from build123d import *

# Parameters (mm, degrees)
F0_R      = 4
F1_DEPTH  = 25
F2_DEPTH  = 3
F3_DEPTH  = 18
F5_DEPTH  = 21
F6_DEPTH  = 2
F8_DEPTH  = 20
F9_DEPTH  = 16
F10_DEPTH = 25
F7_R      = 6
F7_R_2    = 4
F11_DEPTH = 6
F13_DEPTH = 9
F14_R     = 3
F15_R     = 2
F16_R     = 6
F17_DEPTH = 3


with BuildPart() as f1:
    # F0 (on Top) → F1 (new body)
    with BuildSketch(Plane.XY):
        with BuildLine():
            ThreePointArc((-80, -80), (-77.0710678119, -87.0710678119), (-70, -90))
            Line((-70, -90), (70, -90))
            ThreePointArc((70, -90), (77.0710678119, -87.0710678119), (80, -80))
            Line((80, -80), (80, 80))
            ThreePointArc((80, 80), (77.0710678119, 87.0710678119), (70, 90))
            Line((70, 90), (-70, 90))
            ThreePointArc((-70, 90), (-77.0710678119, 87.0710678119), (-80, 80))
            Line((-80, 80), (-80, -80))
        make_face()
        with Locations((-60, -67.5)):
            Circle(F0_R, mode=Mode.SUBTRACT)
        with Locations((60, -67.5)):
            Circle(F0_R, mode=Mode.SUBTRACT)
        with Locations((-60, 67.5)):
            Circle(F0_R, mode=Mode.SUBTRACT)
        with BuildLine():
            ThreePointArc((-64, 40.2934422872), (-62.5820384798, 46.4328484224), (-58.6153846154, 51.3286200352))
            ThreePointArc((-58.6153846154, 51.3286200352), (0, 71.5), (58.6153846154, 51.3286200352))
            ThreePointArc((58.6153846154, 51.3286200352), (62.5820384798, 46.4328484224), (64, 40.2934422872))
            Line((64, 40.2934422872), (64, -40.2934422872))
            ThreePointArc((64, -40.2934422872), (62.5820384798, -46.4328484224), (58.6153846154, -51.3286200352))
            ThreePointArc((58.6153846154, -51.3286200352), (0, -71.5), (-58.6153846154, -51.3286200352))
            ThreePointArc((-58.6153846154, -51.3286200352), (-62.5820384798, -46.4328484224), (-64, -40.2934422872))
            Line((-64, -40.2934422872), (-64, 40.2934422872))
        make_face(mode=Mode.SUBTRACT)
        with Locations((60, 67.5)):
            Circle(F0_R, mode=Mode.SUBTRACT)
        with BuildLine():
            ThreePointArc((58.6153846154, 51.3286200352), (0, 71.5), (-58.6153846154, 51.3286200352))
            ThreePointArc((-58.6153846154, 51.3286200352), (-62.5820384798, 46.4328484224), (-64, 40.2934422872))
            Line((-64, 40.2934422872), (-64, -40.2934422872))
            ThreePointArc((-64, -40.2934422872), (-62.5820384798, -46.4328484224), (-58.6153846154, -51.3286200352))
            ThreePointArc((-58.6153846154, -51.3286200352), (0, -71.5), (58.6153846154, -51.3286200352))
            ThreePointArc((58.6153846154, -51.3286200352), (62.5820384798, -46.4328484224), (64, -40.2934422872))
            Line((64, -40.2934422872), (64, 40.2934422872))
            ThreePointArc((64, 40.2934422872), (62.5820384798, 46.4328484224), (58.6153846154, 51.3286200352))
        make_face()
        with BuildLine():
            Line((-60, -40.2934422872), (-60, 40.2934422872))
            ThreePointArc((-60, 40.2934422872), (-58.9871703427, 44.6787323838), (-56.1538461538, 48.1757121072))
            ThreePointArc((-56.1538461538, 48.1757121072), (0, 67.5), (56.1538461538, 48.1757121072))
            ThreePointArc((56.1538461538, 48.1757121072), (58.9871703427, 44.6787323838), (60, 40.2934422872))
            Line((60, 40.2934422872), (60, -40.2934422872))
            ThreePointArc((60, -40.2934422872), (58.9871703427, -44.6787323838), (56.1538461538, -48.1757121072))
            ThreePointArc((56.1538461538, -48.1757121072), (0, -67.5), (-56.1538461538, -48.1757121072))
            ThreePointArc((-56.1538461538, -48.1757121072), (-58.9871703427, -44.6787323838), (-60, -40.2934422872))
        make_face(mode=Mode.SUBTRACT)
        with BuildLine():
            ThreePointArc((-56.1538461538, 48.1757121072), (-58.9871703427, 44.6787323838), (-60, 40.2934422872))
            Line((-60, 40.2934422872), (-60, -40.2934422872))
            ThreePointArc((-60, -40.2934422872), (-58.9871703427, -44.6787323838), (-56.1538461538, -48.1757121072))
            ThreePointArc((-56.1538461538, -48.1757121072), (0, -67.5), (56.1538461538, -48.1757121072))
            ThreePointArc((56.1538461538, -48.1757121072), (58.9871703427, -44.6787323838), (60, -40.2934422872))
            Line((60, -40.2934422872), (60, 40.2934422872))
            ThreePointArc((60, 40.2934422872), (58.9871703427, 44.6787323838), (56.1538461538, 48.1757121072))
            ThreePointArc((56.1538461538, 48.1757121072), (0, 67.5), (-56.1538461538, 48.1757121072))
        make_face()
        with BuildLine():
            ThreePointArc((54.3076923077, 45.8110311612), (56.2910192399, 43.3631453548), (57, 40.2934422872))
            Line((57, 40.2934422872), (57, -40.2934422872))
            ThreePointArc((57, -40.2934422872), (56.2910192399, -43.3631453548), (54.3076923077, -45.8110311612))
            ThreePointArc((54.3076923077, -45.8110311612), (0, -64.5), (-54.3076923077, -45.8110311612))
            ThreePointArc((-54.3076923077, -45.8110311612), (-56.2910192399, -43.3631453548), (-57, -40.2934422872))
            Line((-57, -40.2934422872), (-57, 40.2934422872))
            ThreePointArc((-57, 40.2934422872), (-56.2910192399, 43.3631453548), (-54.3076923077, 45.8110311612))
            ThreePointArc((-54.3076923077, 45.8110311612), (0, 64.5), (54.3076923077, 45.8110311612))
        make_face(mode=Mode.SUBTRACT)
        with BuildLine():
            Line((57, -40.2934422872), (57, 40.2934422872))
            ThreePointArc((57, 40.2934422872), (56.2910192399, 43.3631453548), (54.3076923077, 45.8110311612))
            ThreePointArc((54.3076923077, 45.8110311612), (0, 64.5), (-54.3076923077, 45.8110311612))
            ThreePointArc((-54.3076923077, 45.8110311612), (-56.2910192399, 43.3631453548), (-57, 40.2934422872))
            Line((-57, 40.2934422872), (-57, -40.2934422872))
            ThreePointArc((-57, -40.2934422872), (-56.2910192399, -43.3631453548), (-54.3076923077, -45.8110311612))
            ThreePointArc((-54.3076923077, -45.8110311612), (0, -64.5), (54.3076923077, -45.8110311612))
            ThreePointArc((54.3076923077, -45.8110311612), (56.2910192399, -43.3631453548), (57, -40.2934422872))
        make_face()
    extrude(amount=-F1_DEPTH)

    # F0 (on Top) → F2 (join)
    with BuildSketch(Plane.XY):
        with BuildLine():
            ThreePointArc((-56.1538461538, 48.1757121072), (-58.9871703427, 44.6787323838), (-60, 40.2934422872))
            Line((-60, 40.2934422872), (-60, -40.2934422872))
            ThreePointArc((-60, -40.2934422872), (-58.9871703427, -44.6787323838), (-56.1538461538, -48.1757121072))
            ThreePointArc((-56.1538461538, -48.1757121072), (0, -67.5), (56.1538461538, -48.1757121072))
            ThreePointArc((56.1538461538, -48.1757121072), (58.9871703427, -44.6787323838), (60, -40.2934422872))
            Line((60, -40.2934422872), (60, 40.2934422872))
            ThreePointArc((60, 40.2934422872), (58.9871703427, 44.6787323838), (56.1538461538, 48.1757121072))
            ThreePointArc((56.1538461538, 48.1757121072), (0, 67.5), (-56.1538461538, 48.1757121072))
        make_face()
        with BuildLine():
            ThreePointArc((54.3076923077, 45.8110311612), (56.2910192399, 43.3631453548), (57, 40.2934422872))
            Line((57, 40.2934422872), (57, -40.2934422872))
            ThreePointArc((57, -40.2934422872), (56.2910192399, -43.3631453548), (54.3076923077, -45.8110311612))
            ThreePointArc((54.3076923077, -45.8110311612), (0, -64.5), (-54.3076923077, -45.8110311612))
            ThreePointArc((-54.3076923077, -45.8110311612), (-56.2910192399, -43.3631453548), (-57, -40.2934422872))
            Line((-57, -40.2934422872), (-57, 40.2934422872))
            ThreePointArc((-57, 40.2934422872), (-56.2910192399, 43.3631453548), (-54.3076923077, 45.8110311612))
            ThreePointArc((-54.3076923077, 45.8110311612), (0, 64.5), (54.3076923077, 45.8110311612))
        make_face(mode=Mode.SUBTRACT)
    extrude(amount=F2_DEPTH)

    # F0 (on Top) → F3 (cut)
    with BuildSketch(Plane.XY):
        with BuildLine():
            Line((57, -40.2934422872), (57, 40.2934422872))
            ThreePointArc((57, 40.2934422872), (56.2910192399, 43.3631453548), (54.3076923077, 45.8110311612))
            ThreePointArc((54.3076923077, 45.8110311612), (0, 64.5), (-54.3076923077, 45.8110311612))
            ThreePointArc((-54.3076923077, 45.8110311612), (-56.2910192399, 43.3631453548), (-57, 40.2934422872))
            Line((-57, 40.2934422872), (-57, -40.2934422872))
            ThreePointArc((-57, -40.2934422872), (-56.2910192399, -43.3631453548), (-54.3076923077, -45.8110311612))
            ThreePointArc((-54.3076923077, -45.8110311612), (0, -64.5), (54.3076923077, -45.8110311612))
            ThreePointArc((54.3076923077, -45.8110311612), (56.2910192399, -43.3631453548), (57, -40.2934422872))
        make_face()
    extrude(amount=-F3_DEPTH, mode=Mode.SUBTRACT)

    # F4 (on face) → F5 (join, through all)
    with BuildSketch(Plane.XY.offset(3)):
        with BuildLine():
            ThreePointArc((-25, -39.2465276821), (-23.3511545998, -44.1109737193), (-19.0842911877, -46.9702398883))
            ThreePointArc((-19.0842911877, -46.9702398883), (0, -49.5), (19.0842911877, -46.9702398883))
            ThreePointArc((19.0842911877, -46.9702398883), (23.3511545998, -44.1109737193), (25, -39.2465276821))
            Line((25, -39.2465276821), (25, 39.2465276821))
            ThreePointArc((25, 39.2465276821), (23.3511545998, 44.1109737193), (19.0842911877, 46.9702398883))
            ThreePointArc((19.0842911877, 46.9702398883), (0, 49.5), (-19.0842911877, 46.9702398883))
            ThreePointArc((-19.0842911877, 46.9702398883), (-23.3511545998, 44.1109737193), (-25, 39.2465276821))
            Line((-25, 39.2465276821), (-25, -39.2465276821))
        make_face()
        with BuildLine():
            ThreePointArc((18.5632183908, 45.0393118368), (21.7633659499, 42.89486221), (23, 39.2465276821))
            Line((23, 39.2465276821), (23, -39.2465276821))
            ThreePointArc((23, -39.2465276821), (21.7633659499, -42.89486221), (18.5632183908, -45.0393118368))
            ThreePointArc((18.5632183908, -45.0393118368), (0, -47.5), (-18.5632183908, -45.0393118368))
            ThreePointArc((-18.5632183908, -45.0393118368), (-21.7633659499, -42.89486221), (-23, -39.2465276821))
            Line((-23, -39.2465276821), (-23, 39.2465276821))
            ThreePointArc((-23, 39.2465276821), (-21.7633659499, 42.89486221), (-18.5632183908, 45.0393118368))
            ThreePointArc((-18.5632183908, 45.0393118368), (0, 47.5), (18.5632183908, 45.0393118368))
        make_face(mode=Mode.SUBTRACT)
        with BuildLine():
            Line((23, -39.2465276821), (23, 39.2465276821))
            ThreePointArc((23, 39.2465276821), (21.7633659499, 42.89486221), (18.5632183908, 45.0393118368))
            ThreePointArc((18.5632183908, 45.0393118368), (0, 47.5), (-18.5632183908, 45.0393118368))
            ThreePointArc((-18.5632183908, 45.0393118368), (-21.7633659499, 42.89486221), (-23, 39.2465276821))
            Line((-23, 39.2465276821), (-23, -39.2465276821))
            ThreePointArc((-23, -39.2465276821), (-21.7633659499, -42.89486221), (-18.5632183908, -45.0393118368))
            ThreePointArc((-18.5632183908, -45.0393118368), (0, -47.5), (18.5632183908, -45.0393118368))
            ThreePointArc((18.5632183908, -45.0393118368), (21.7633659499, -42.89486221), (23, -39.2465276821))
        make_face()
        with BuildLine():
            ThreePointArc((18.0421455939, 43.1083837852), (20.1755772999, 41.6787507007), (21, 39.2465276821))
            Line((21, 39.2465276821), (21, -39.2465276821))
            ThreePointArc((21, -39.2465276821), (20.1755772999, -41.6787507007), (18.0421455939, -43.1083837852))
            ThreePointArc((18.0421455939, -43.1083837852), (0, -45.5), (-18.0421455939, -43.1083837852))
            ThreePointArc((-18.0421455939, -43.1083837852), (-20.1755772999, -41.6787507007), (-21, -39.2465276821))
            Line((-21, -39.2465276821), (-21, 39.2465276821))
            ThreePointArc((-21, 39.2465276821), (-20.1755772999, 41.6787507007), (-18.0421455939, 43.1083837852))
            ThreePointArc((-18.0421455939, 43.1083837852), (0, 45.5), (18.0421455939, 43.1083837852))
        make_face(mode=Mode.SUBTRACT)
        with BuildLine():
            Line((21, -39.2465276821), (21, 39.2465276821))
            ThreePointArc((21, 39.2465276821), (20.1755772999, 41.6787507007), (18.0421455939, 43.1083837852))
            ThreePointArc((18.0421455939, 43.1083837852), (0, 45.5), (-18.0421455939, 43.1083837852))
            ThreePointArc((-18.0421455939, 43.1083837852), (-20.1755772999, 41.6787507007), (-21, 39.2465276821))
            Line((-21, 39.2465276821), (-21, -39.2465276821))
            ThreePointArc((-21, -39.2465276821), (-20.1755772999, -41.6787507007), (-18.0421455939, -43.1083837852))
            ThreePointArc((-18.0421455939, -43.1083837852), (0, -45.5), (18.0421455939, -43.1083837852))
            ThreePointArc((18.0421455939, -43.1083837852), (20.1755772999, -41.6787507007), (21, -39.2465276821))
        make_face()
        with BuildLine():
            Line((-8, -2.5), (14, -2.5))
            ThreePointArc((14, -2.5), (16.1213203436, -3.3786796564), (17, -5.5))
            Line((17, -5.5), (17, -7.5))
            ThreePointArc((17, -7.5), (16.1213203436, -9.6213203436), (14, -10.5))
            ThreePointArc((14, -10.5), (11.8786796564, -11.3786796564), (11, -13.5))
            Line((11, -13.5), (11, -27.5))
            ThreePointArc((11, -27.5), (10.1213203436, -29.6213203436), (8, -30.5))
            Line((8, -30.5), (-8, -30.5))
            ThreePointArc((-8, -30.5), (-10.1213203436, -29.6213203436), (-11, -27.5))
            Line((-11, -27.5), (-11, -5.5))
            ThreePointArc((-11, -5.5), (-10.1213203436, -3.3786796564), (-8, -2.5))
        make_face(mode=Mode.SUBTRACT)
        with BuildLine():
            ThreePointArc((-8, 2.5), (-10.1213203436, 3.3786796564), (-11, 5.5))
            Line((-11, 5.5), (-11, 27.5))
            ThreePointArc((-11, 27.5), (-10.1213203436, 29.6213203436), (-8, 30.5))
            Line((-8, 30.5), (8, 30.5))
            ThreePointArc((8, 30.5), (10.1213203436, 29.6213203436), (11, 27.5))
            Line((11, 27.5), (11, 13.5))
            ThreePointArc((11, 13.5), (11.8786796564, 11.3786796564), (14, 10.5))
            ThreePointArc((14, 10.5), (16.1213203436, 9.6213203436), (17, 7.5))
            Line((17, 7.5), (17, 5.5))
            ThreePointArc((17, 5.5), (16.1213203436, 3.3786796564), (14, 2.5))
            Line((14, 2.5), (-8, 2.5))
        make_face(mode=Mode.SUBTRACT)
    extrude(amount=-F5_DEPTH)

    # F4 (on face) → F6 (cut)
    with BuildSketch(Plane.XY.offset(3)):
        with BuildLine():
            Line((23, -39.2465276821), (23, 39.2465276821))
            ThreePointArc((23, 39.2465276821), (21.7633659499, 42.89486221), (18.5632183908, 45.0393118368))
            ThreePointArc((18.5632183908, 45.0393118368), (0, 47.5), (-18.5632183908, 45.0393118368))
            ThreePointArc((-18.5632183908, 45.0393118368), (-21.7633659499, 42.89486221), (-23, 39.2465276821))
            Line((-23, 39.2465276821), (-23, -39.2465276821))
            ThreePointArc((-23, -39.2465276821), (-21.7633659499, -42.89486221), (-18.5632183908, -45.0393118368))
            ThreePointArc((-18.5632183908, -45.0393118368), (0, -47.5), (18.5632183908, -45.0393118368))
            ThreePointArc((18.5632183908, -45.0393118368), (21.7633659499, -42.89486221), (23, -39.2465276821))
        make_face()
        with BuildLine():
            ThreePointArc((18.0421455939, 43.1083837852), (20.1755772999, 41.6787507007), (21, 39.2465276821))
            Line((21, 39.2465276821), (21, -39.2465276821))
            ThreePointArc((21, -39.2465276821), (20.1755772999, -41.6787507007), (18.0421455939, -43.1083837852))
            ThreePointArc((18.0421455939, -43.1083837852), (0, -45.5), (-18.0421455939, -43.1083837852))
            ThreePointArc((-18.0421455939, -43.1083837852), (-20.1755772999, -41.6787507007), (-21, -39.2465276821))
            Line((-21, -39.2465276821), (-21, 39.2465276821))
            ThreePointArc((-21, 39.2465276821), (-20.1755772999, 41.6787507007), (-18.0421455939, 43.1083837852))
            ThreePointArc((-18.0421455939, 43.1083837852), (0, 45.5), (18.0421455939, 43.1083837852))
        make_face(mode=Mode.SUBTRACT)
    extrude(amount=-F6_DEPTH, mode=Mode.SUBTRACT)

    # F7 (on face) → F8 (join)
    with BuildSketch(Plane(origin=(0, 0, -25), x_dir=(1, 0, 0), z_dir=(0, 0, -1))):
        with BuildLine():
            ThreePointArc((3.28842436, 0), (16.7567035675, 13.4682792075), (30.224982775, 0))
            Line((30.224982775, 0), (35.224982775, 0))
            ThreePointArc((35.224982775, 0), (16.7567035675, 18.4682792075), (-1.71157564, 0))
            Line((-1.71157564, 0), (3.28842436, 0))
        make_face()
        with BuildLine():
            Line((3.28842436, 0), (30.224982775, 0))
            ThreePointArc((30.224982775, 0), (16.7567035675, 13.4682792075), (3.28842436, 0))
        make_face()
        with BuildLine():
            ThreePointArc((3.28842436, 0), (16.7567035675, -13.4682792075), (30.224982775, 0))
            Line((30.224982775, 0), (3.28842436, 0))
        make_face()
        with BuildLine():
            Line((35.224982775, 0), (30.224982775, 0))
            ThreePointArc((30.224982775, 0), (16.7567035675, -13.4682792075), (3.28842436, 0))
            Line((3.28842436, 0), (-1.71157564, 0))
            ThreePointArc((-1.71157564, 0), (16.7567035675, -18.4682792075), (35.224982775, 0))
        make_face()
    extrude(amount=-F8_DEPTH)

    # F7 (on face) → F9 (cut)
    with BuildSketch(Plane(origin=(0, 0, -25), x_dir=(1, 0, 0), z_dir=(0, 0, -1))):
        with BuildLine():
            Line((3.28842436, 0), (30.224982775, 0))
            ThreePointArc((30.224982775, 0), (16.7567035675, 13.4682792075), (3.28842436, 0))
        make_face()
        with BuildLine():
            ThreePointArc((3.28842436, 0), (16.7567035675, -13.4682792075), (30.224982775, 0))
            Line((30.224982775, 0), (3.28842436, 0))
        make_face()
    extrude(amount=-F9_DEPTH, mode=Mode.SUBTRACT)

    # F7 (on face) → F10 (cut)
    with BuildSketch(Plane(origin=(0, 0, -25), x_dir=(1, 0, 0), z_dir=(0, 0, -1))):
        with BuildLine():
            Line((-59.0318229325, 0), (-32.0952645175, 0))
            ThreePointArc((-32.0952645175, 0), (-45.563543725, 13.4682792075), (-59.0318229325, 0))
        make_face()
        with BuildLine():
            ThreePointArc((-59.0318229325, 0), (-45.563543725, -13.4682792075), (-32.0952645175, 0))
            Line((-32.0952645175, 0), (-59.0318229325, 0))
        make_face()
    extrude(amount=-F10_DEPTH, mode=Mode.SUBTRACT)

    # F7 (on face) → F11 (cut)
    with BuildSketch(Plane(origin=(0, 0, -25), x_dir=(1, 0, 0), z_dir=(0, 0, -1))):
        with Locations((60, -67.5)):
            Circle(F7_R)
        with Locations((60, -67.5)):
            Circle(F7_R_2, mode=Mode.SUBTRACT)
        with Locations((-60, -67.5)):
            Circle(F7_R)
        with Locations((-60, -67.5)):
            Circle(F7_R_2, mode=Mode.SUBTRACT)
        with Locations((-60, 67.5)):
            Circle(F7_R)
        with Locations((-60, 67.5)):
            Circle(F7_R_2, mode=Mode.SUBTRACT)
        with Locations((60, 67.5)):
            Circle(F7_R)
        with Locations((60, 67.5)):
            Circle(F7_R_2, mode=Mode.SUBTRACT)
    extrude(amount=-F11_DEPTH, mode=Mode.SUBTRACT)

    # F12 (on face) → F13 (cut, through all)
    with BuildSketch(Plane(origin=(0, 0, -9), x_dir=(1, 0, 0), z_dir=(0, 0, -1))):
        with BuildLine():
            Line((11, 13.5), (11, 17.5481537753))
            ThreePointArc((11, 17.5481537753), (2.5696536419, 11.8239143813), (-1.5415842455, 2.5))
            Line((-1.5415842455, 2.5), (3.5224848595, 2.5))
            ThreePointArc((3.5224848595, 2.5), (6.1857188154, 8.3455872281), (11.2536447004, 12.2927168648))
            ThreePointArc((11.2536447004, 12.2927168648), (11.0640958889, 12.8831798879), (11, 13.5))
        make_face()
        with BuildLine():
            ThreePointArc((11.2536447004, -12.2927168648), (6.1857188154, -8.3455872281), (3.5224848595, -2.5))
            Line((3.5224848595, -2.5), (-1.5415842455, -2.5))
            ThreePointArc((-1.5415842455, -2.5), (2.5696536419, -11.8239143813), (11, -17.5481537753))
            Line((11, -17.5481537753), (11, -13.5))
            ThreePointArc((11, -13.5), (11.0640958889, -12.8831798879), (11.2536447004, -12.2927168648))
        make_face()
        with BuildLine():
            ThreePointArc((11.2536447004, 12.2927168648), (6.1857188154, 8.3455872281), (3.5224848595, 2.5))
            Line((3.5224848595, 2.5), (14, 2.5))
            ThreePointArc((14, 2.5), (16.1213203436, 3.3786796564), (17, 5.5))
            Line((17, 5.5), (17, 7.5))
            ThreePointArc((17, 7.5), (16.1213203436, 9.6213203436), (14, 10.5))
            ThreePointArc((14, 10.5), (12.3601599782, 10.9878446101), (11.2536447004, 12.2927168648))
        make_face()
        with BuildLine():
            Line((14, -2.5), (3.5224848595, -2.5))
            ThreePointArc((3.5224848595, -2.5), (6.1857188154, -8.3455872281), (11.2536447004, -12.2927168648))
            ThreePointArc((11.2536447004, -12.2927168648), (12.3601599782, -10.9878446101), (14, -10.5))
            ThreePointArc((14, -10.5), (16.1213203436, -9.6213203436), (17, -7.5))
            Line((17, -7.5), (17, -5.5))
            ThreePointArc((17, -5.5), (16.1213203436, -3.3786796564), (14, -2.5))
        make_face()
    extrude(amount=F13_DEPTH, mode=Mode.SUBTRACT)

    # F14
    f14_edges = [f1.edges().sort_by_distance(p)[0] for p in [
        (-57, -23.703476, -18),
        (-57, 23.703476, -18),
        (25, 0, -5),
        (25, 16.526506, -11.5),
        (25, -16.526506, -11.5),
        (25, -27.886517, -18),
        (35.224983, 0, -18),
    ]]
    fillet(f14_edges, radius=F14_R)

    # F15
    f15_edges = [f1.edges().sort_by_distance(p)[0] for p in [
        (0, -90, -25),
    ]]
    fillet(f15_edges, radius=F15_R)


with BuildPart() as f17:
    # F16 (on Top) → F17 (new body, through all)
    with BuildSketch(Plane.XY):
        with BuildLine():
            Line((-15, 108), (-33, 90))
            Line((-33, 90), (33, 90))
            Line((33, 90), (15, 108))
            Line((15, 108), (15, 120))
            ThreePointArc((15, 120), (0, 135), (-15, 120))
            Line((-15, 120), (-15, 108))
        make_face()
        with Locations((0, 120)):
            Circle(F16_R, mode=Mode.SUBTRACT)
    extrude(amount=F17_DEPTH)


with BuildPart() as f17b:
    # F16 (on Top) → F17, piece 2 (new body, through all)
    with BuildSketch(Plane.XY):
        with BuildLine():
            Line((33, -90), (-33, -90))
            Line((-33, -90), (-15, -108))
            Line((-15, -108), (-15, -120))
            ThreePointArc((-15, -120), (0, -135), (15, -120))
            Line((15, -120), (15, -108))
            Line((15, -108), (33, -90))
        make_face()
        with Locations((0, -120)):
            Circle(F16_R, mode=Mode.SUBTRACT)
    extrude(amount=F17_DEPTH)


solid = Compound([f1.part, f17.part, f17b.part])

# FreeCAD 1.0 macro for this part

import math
import FreeCAD as App
import Part
import Sketcher
from FreeCAD import Vector
Q = App.Units.Quantity


def edges_at(feature, points):
    """Names of the edges that pass closest to the given points."""
    edges = feature.Shape.Edges
    near = lambda p: min(range(len(edges)), key=lambda i: edges[i].distToShape(Part.Vertex(*p))[0])
    return sorted({f"Edge{near(p) + 1}" for p in points})

doc = App.newDocument("Part")
body = doc.addObject("PartDesign::Body", "Body")

sketch1 = body.newObject("Sketcher::SketchObject", "Sketch")
sketch1.AttachmentSupport = (doc.getObject("XY_Plane"), [""])
sketch1.MapMode = "FlatFace"
sketch1.addGeometry([
    Part.ArcOfCircle(Part.Circle(Vector(-70, -80, 0), Vector(0, 0, 1), 10), math.radians(180), math.radians(270)),
    Part.LineSegment(Vector(-70, -90, 0), Vector(70, -90, 0)),
    Part.ArcOfCircle(Part.Circle(Vector(70, -80, 0), Vector(0, 0, 1), 10), math.radians(-90), math.radians(0)),
    Part.LineSegment(Vector(80, -80, 0), Vector(80, 80, 0)),
    Part.ArcOfCircle(Part.Circle(Vector(70, 80, 0), Vector(0, 0, 1), 10), math.radians(0), math.radians(90)),
    Part.LineSegment(Vector(70, 90, 0), Vector(-70, 90, 0)),
    Part.ArcOfCircle(Part.Circle(Vector(-70, 80, 0), Vector(0, 0, 1), 10), math.radians(90), math.radians(180)),
    Part.LineSegment(Vector(-80, 80, 0), Vector(-80, -80, 0)),
    Part.Circle(Vector(-60, -67.5, 0), Vector(0, 0, 1), 4),
    Part.Circle(Vector(60, -67.5, 0), Vector(0, 0, 1), 4),
    Part.Circle(Vector(-60, 67.5, 0), Vector(0, 0, 1), 4),
    Part.Circle(Vector(60, 67.5, 0), Vector(0, 0, 1), 4),
], False)
sketch1.addConstraint([
    Sketcher.Constraint("Tangent", 0, 2, 1, 1),
    Sketcher.Constraint("Tangent", 1, 2, 2, 1),
    Sketcher.Constraint("Tangent", 2, 2, 3, 1),
    Sketcher.Constraint("Tangent", 3, 2, 4, 1),
    Sketcher.Constraint("Tangent", 4, 2, 5, 1),
    Sketcher.Constraint("Tangent", 5, 2, 6, 1),
    Sketcher.Constraint("Tangent", 6, 2, 7, 1),
    Sketcher.Constraint("Tangent", 7, 2, 0, 1),
    Sketcher.Constraint("Horizontal", 1),
    Sketcher.Constraint("Vertical", 3),
    Sketcher.Constraint("Horizontal", 5),
    Sketcher.Constraint("Vertical", 7),
    Sketcher.Constraint("Equal", 0, 2),
    Sketcher.Constraint("Equal", 2, 4),
    Sketcher.Constraint("Equal", 4, 6),
    Sketcher.Constraint("Equal", 8, 9),
    Sketcher.Constraint("Equal", 9, 10),
    Sketcher.Constraint("Equal", 10, 11),
    Sketcher.Constraint("Symmetric", 0, 3, 4, 3, -1, 1),
    Sketcher.Constraint("Symmetric", 9, 3, 10, 3, -1, 1),
    Sketcher.Constraint("Symmetric", 8, 3, 11, 3, -1, 1),
    Sketcher.Constraint("Symmetric", 8, 3, 9, 3, -2),
    Sketcher.Constraint("Diameter", 8, Q("8 mm")),
    Sketcher.Constraint("Radius", 0, Q("10 mm")),
    Sketcher.Constraint("DistanceX", 1, 1, 1, 2, Q("140 mm")),
    Sketcher.Constraint("DistanceY", 3, 1, 3, 2, Q("160 mm")),
    Sketcher.Constraint("DistanceX", 8, 3, -1, 1, Q("60 mm")),
    Sketcher.Constraint("DistanceY", 8, 3, 10, 3, Q("135 mm")),
])
pad1 = body.newObject("PartDesign::Pad", "Pad")
pad1.Profile = sketch1
pad1.Length = 25
pad1.Reversed = True

sketch2 = body.newObject("Sketcher::SketchObject", "Sketch001")
sketch2.AttachmentSupport = (doc.getObject("XY_Plane"), [""])
sketch2.MapMode = "FlatFace"
sketch2.addGeometry([
    Part.ArcOfCircle(Part.Circle(Vector(-50, 40, 0), Vector(0, 0, 1), 10), math.radians(128), math.radians(180)),
    Part.LineSegment(Vector(-60, 40, 0), Vector(-60, -40, 0)),
    Part.ArcOfCircle(Part.Circle(Vector(-50, -40, 0), Vector(0, 0, 1), 10), math.radians(180), math.radians(232)),
    Part.ArcOfCircle(Part.Circle(Vector(0, 24, 0), Vector(0, 0, 1), 91), math.radians(-128), math.radians(-52)),
    Part.ArcOfCircle(Part.Circle(Vector(50, -40, 0), Vector(0, 0, 1), 10), math.radians(-52), math.radians(0)),
    Part.LineSegment(Vector(60, -40, 0), Vector(60, 40, 0)),
    Part.ArcOfCircle(Part.Circle(Vector(50, 40, 0), Vector(0, 0, 1), 10), math.radians(0), math.radians(52)),
    Part.ArcOfCircle(Part.Circle(Vector(0, -24, 0), Vector(0, 0, 1), 91), math.radians(52), math.radians(128)),
    Part.ArcOfCircle(Part.Circle(Vector(0, -24, 0), Vector(0, 0, 1), 88), math.radians(52), math.radians(128)),
    Part.ArcOfCircle(Part.Circle(Vector(50, 40, 0), Vector(0, 0, 1), 7), math.radians(0), math.radians(52)),
    Part.LineSegment(Vector(57, 40, 0), Vector(57, -40, 0)),
    Part.ArcOfCircle(Part.Circle(Vector(50, -40, 0), Vector(0, 0, 1), 7), math.radians(-52), math.radians(0)),
    Part.ArcOfCircle(Part.Circle(Vector(0, 24, 0), Vector(0, 0, 1), 88), math.radians(-128), math.radians(-52)),
    Part.ArcOfCircle(Part.Circle(Vector(-50, -40, 0), Vector(0, 0, 1), 7), math.radians(180), math.radians(232)),
    Part.LineSegment(Vector(-57, -40, 0), Vector(-57, 40, 0)),
    Part.ArcOfCircle(Part.Circle(Vector(-50, 40, 0), Vector(0, 0, 1), 7), math.radians(128), math.radians(180)),
], False)
sketch2.addConstraint([
    Sketcher.Constraint("Tangent", 0, 2, 1, 1),
    Sketcher.Constraint("Tangent", 1, 2, 2, 1),
    Sketcher.Constraint("Tangent", 2, 2, 3, 1),
    Sketcher.Constraint("Tangent", 3, 2, 4, 1),
    Sketcher.Constraint("Tangent", 4, 2, 5, 1),
    Sketcher.Constraint("Tangent", 5, 2, 6, 1),
    Sketcher.Constraint("Tangent", 6, 2, 7, 1),
    Sketcher.Constraint("Tangent", 7, 2, 0, 1),
    Sketcher.Constraint("Tangent", 8, 1, 9, 2),
    Sketcher.Constraint("Tangent", 9, 1, 10, 1),
    Sketcher.Constraint("Tangent", 10, 2, 11, 2),
    Sketcher.Constraint("Tangent", 11, 1, 12, 2),
    Sketcher.Constraint("Tangent", 12, 1, 13, 2),
    Sketcher.Constraint("Tangent", 13, 1, 14, 1),
    Sketcher.Constraint("Tangent", 14, 2, 15, 2),
    Sketcher.Constraint("Tangent", 15, 1, 8, 2),
    Sketcher.Constraint("Vertical", 1),
    Sketcher.Constraint("Vertical", 5),
    Sketcher.Constraint("Vertical", 10),
    Sketcher.Constraint("Vertical", 14),
    Sketcher.Constraint("Coincident", 8, 3, 7, 3),
    Sketcher.Constraint("Coincident", 9, 3, 6, 3),
    Sketcher.Constraint("Coincident", 11, 3, 4, 3),
    Sketcher.Constraint("Coincident", 12, 3, 3, 3),
    Sketcher.Constraint("Coincident", 13, 3, 2, 3),
    Sketcher.Constraint("Equal", 0, 2),
    Sketcher.Constraint("Equal", 2, 4),
    Sketcher.Constraint("Equal", 4, 6),
    Sketcher.Constraint("Equal", 3, 7),
    Sketcher.Constraint("Equal", 13, 15),
    Sketcher.Constraint("Symmetric", 0, 3, 4, 3, -1, 1),
    Sketcher.Constraint("Symmetric", 3, 3, 7, 3, -1),
    Sketcher.Constraint("Radius", 0, Q("10 mm")),
    Sketcher.Constraint("Radius", 9, Q("7 mm")),
    Sketcher.Constraint("Radius", 3, Q("91.25 mm")),
    Sketcher.Constraint("DistanceX", 0, 3, -1, 1, Q("50 mm")),
    Sketcher.Constraint("DistanceY", 7, 3, 3, 3, Q("47.5 mm")),
])
pad2 = body.newObject("PartDesign::Pad", "Pad001")
pad2.Profile = sketch2
pad2.Length = 3

sketch3 = body.newObject("Sketcher::SketchObject", "Sketch002")
sketch3.AttachmentSupport = (doc.getObject("XY_Plane"), [""])
sketch3.MapMode = "FlatFace"
sketch3.addGeometry([
    Part.LineSegment(Vector(57, -40, 0), Vector(57, 40, 0)),
    Part.ArcOfCircle(Part.Circle(Vector(50, 40, 0), Vector(0, 0, 1), 7), math.radians(0), math.radians(52)),
    Part.ArcOfCircle(Part.Circle(Vector(0, -24, 0), Vector(0, 0, 1), 88), math.radians(52), math.radians(128)),
    Part.ArcOfCircle(Part.Circle(Vector(-50, 40, 0), Vector(0, 0, 1), 7), math.radians(128), math.radians(180)),
    Part.LineSegment(Vector(-57, 40, 0), Vector(-57, -40, 0)),
    Part.ArcOfCircle(Part.Circle(Vector(-50, -40, 0), Vector(0, 0, 1), 7), math.radians(180), math.radians(232)),
    Part.ArcOfCircle(Part.Circle(Vector(0, 24, 0), Vector(0, 0, 1), 88), math.radians(-128), math.radians(-52)),
    Part.ArcOfCircle(Part.Circle(Vector(50, -40, 0), Vector(0, 0, 1), 7), math.radians(-52), math.radians(0)),
], False)
sketch3.addConstraint([
    Sketcher.Constraint("Tangent", 0, 2, 1, 1),
    Sketcher.Constraint("Tangent", 1, 2, 2, 1),
    Sketcher.Constraint("Tangent", 2, 2, 3, 1),
    Sketcher.Constraint("Tangent", 3, 2, 4, 1),
    Sketcher.Constraint("Tangent", 4, 2, 5, 1),
    Sketcher.Constraint("Tangent", 5, 2, 6, 1),
    Sketcher.Constraint("Tangent", 6, 2, 7, 1),
    Sketcher.Constraint("Tangent", 7, 2, 0, 1),
    Sketcher.Constraint("Vertical", 0),
    Sketcher.Constraint("Vertical", 4),
    Sketcher.Constraint("Equal", 1, 3),
    Sketcher.Constraint("Equal", 3, 5),
    Sketcher.Constraint("Equal", 2, 6),
    Sketcher.Constraint("Equal", 5, 7),
    Sketcher.Constraint("Symmetric", 1, 3, 5, 3, -1, 1),
    Sketcher.Constraint("Symmetric", 2, 3, 6, 3, -1),
    Sketcher.Constraint("Radius", 1, Q("7 mm")),
    Sketcher.Constraint("Radius", 2, Q("88.25 mm")),
    Sketcher.Constraint("DistanceX", -1, 1, 1, 3, Q("50 mm")),
    Sketcher.Constraint("DistanceY", 2, 3, 6, 3, Q("47.5 mm")),
])
pocket1 = body.newObject("PartDesign::Pocket", "Pocket")
pocket1.Profile = sketch3
pocket1.Length = 18

sketch4 = body.newObject("Sketcher::SketchObject", "Sketch003")
sketch4.AttachmentSupport = (doc.getObject("XY_Plane"), [""])
sketch4.MapMode = "FlatFace"
sketch4.AttachmentOffset = App.Placement(Vector(0, 0, 3), App.Rotation())
sketch4.addGeometry([
    Part.ArcOfCircle(Part.Circle(Vector(-17, -39.2, 0), Vector(0, 0, 1), 8), math.radians(180), math.radians(255)),
    Part.ArcOfCircle(Part.Circle(Vector(0, 23.7, 0), Vector(0, 0, 1), 73.2), math.radians(-105), math.radians(-75)),
    Part.ArcOfCircle(Part.Circle(Vector(17, -39.2, 0), Vector(0, 0, 1), 8), math.radians(-75), math.radians(0)),
    Part.LineSegment(Vector(25, -39.2, 0), Vector(25, 39.2, 0)),
    Part.ArcOfCircle(Part.Circle(Vector(17, 39.2, 0), Vector(0, 0, 1), 8), math.radians(0), math.radians(75)),
    Part.ArcOfCircle(Part.Circle(Vector(0, -23.7, 0), Vector(0, 0, 1), 73.2), math.radians(75), math.radians(105)),
    Part.ArcOfCircle(Part.Circle(Vector(-17, 39.2, 0), Vector(0, 0, 1), 8), math.radians(105), math.radians(180)),
    Part.LineSegment(Vector(-25, 39.2, 0), Vector(-25, -39.2, 0)),
    Part.ArcOfCircle(Part.Circle(Vector(-8, -5.5, 0), Vector(0, 0, 1), 3), math.radians(90), math.radians(180)),
    Part.LineSegment(Vector(-8, -2.5, 0), Vector(14, -2.5, 0)),
    Part.ArcOfCircle(Part.Circle(Vector(14, -5.5, 0), Vector(0, 0, 1), 3), math.radians(0), math.radians(90)),
    Part.LineSegment(Vector(17, -5.5, 0), Vector(17, -7.5, 0)),
    Part.ArcOfCircle(Part.Circle(Vector(14, -7.5, 0), Vector(0, 0, 1), 3), math.radians(-90), math.radians(0)),
    Part.ArcOfCircle(Part.Circle(Vector(14, -13.5, 0), Vector(0, 0, 1), 3), math.radians(90), math.radians(180)),
    Part.LineSegment(Vector(11, -13.5, 0), Vector(11, -27.5, 0)),
    Part.ArcOfCircle(Part.Circle(Vector(8, -27.5, 0), Vector(0, 0, 1), 3), math.radians(-90), math.radians(0)),
    Part.LineSegment(Vector(8, -30.5, 0), Vector(-8, -30.5, 0)),
    Part.ArcOfCircle(Part.Circle(Vector(-8, -27.5, 0), Vector(0, 0, 1), 3), math.radians(180), math.radians(270)),
    Part.LineSegment(Vector(-11, -27.5, 0), Vector(-11, -5.5, 0)),
    Part.LineSegment(Vector(14, 2.5, 0), Vector(-8, 2.5, 0)),
    Part.ArcOfCircle(Part.Circle(Vector(-8, 5.5, 0), Vector(0, 0, 1), 3), math.radians(180), math.radians(270)),
    Part.LineSegment(Vector(-11, 5.5, 0), Vector(-11, 27.5, 0)),
    Part.ArcOfCircle(Part.Circle(Vector(-8, 27.5, 0), Vector(0, 0, 1), 3), math.radians(90), math.radians(180)),
    Part.LineSegment(Vector(-8, 30.5, 0), Vector(8, 30.5, 0)),
    Part.ArcOfCircle(Part.Circle(Vector(8, 27.5, 0), Vector(0, 0, 1), 3), math.radians(0), math.radians(90)),
    Part.LineSegment(Vector(11, 27.5, 0), Vector(11, 13.5, 0)),
    Part.ArcOfCircle(Part.Circle(Vector(14, 13.5, 0), Vector(0, 0, 1), 3), math.radians(180), math.radians(270)),
    Part.ArcOfCircle(Part.Circle(Vector(14, 7.5, 0), Vector(0, 0, 1), 3), math.radians(0), math.radians(90)),
    Part.LineSegment(Vector(17, 7.5, 0), Vector(17, 5.5, 0)),
    Part.ArcOfCircle(Part.Circle(Vector(14, 5.5, 0), Vector(0, 0, 1), 3), math.radians(-90), math.radians(0)),
], False)
sketch4.addConstraint([
    Sketcher.Constraint("Tangent", 0, 2, 1, 1),
    Sketcher.Constraint("Tangent", 1, 2, 2, 1),
    Sketcher.Constraint("Tangent", 2, 2, 3, 1),
    Sketcher.Constraint("Tangent", 3, 2, 4, 1),
    Sketcher.Constraint("Tangent", 4, 2, 5, 1),
    Sketcher.Constraint("Tangent", 5, 2, 6, 1),
    Sketcher.Constraint("Tangent", 6, 2, 7, 1),
    Sketcher.Constraint("Tangent", 7, 2, 0, 1),
    Sketcher.Constraint("Tangent", 8, 1, 9, 1),
    Sketcher.Constraint("Tangent", 9, 2, 10, 2),
    Sketcher.Constraint("Tangent", 10, 1, 11, 1),
    Sketcher.Constraint("Tangent", 11, 2, 12, 2),
    Sketcher.Constraint("Tangent", 12, 1, 13, 1),
    Sketcher.Constraint("Tangent", 13, 2, 14, 1),
    Sketcher.Constraint("Tangent", 14, 2, 15, 2),
    Sketcher.Constraint("Tangent", 15, 1, 16, 1),
    Sketcher.Constraint("Tangent", 16, 2, 17, 2),
    Sketcher.Constraint("Tangent", 17, 1, 18, 1),
    Sketcher.Constraint("Tangent", 18, 2, 8, 2),
    Sketcher.Constraint("Tangent", 19, 2, 20, 2),
    Sketcher.Constraint("Tangent", 20, 1, 21, 1),
    Sketcher.Constraint("Tangent", 21, 2, 22, 2),
    Sketcher.Constraint("Tangent", 22, 1, 23, 1),
    Sketcher.Constraint("Tangent", 23, 2, 24, 2),
    Sketcher.Constraint("Tangent", 24, 1, 25, 1),
    Sketcher.Constraint("Tangent", 25, 2, 26, 1),
    Sketcher.Constraint("Tangent", 26, 2, 27, 2),
    Sketcher.Constraint("Tangent", 27, 1, 28, 1),
    Sketcher.Constraint("Tangent", 28, 2, 29, 2),
    Sketcher.Constraint("Tangent", 29, 1, 19, 1),
    Sketcher.Constraint("Vertical", 3),
    Sketcher.Constraint("Vertical", 7),
    Sketcher.Constraint("Horizontal", 9),
    Sketcher.Constraint("Vertical", 11),
    Sketcher.Constraint("Vertical", 14),
    Sketcher.Constraint("Horizontal", 16),
    Sketcher.Constraint("Vertical", 18),
    Sketcher.Constraint("Horizontal", 19),
    Sketcher.Constraint("Vertical", 21),
    Sketcher.Constraint("Horizontal", 23),
    Sketcher.Constraint("Vertical", 25),
    Sketcher.Constraint("Vertical", 28),
    Sketcher.Constraint("Equal", 0, 2),
    Sketcher.Constraint("Equal", 2, 4),
    Sketcher.Constraint("Equal", 1, 5),
    Sketcher.Constraint("Equal", 4, 6),
    Sketcher.Constraint("Equal", 8, 10),
    Sketcher.Constraint("Equal", 10, 12),
    Sketcher.Constraint("Equal", 12, 13),
    Sketcher.Constraint("Equal", 13, 15),
    Sketcher.Constraint("Equal", 15, 17),
    Sketcher.Constraint("Equal", 17, 20),
    Sketcher.Constraint("Equal", 20, 22),
    Sketcher.Constraint("Equal", 22, 24),
    Sketcher.Constraint("Equal", 24, 26),
    Sketcher.Constraint("Equal", 26, 27),
    Sketcher.Constraint("Equal", 27, 29),
    Sketcher.Constraint("Symmetric", 0, 3, 4, 3, -1, 1),
    Sketcher.Constraint("Symmetric", 15, 3, 22, 3, -1, 1),
    Sketcher.Constraint("Symmetric", 1, 3, 5, 3, -1),
    Sketcher.Constraint("Symmetric", 8, 3, 20, 3, -1),
    Sketcher.Constraint("Symmetric", 13, 3, 26, 3, -1),
    Sketcher.Constraint("Vertical", 12, 3, 13, 3),
    Sketcher.Constraint("Vertical", 26, 3, 27, 3),
    Sketcher.Constraint("Vertical", 4, 3, 10, 1),
    Sketcher.Constraint("Equal", 19, 18),
    Sketcher.Constraint("Radius", 0, Q("8 mm")),
    Sketcher.Constraint("Radius", 8, Q("3 mm")),
    Sketcher.Constraint("DistanceX", 9, 1, 9, 2, Q("22 mm")),
    Sketcher.Constraint("DistanceY", 11, 2, 11, 1, Q("2 mm")),
    Sketcher.Constraint("Radius", 1, Q("73.25 mm")),
    Sketcher.Constraint("DistanceY", 8, 3, 20, 3, Q("11 mm")),
    Sketcher.Constraint("DistanceY", 5, 3, 1, 3, Q("47.5 mm")),
])
pad3 = body.newObject("PartDesign::Pad", "Pad002")
pad3.Profile = sketch4
pad3.Type = "UpToLast"
pad3.Reversed = True

sketch5 = body.newObject("Sketcher::SketchObject", "Sketch004")
sketch5.AttachmentSupport = (doc.getObject("XY_Plane"), [""])
sketch5.MapMode = "FlatFace"
sketch5.AttachmentOffset = App.Placement(Vector(0, 0, 3), App.Rotation())
sketch5.addGeometry([
    Part.LineSegment(Vector(23, -39.2, 0), Vector(23, 39.2, 0)),
    Part.ArcOfCircle(Part.Circle(Vector(17, 39.2, 0), Vector(0, 0, 1), 6), math.radians(0), math.radians(75)),
    Part.ArcOfCircle(Part.Circle(Vector(0, -23.8, 0), Vector(0, 0, 1), 71.3), math.radians(75), math.radians(105)),
    Part.ArcOfCircle(Part.Circle(Vector(-17, 39.2, 0), Vector(0, 0, 1), 6), math.radians(105), math.radians(180)),
    Part.LineSegment(Vector(-23, 39.2, 0), Vector(-23, -39.2, 0)),
    Part.ArcOfCircle(Part.Circle(Vector(-17, -39.2, 0), Vector(0, 0, 1), 6), math.radians(180), math.radians(255)),
    Part.ArcOfCircle(Part.Circle(Vector(0, 23.8, 0), Vector(0, 0, 1), 71.3), math.radians(-105), math.radians(-75)),
    Part.ArcOfCircle(Part.Circle(Vector(17, -39.2, 0), Vector(0, 0, 1), 6), math.radians(-75), math.radians(0)),
    Part.ArcOfCircle(Part.Circle(Vector(0, -23.8, 0), Vector(0, 0, 1), 69.2), math.radians(75), math.radians(105)),
    Part.ArcOfCircle(Part.Circle(Vector(17, 39.2, 0), Vector(0, 0, 1), 4), math.radians(0), math.radians(75)),
    Part.LineSegment(Vector(21, 39.2, 0), Vector(21, -39.2, 0)),
    Part.ArcOfCircle(Part.Circle(Vector(17, -39.2, 0), Vector(0, 0, 1), 4), math.radians(-75), math.radians(0)),
    Part.ArcOfCircle(Part.Circle(Vector(0, 23.8, 0), Vector(0, 0, 1), 69.2), math.radians(-105), math.radians(-75)),
    Part.ArcOfCircle(Part.Circle(Vector(-17, -39.2, 0), Vector(0, 0, 1), 4), math.radians(180), math.radians(255)),
    Part.LineSegment(Vector(-21, -39.2, 0), Vector(-21, 39.2, 0)),
    Part.ArcOfCircle(Part.Circle(Vector(-17, 39.2, 0), Vector(0, 0, 1), 4), math.radians(105), math.radians(180)),
], False)
sketch5.addConstraint([
    Sketcher.Constraint("Tangent", 0, 2, 1, 1),
    Sketcher.Constraint("Tangent", 1, 2, 2, 1),
    Sketcher.Constraint("Tangent", 2, 2, 3, 1),
    Sketcher.Constraint("Tangent", 3, 2, 4, 1),
    Sketcher.Constraint("Tangent", 4, 2, 5, 1),
    Sketcher.Constraint("Tangent", 5, 2, 6, 1),
    Sketcher.Constraint("Tangent", 6, 2, 7, 1),
    Sketcher.Constraint("Tangent", 7, 2, 0, 1),
    Sketcher.Constraint("Tangent", 8, 1, 9, 2),
    Sketcher.Constraint("Tangent", 9, 1, 10, 1),
    Sketcher.Constraint("Tangent", 10, 2, 11, 2),
    Sketcher.Constraint("Tangent", 11, 1, 12, 2),
    Sketcher.Constraint("Tangent", 12, 1, 13, 2),
    Sketcher.Constraint("Tangent", 13, 1, 14, 1),
    Sketcher.Constraint("Tangent", 14, 2, 15, 2),
    Sketcher.Constraint("Tangent", 15, 1, 8, 2),
    Sketcher.Constraint("Vertical", 0),
    Sketcher.Constraint("Vertical", 4),
    Sketcher.Constraint("Vertical", 10),
    Sketcher.Constraint("Vertical", 14),
    Sketcher.Constraint("Coincident", 8, 3, 2, 3),
    Sketcher.Constraint("Coincident", 9, 3, 1, 3),
    Sketcher.Constraint("Coincident", 11, 3, 7, 3),
    Sketcher.Constraint("Coincident", 12, 3, 6, 3),
    Sketcher.Constraint("Coincident", 13, 3, 5, 3),
    Sketcher.Constraint("Equal", 1, 3),
    Sketcher.Constraint("Equal", 3, 5),
    Sketcher.Constraint("Equal", 2, 6),
    Sketcher.Constraint("Equal", 5, 7),
    Sketcher.Constraint("Equal", 13, 15),
    Sketcher.Constraint("Symmetric", 1, 3, 5, 3, -1, 1),
    Sketcher.Constraint("Symmetric", 2, 3, 6, 3, -1),
    Sketcher.Constraint("Radius", 1, Q("6 mm")),
    Sketcher.Constraint("Radius", 9, Q("4 mm")),
    Sketcher.Constraint("Radius", 2, Q("71.25 mm")),
    Sketcher.Constraint("DistanceX", -1, 1, 1, 3, Q("17 mm")),
    Sketcher.Constraint("DistanceY", 2, 3, 6, 3, Q("47.5 mm")),
])
pocket2 = body.newObject("PartDesign::Pocket", "Pocket001")
pocket2.Profile = sketch5
pocket2.Length = 2

sketch6 = body.newObject("Sketcher::SketchObject", "Sketch005")
sketch6.AttachmentSupport = (doc.getObject("XY_Plane"), [""])
sketch6.MapMode = "FlatFace"
sketch6.AttachmentOffset = App.Placement(Vector(0, 0, -25), App.Rotation())
sketch6.addGeometry(Part.Circle(Vector(17, 0, 0), Vector(0, 0, 1), 18), False)
sketch6.addConstraint([
    Sketcher.Constraint("PointOnObject", 0, 3, -1),
    Sketcher.Constraint("Diameter", 0, Q("36.936558 mm")),
    Sketcher.Constraint("DistanceX", -1, 1, 0, 3, Q("16.756704 mm")),
])
pad4 = body.newObject("PartDesign::Pad", "Pad003")
pad4.Profile = sketch6
pad4.Length = 20

sketch7 = body.newObject("Sketcher::SketchObject", "Sketch006")
sketch7.AttachmentSupport = (doc.getObject("XY_Plane"), [""])
sketch7.MapMode = "FlatFace"
sketch7.AttachmentOffset = App.Placement(Vector(0, 0, -25), App.Rotation())
sketch7.addGeometry(Part.Circle(Vector(17, 0, 0), Vector(0, 0, 1), 13), False)
sketch7.addConstraint([
    Sketcher.Constraint("PointOnObject", 0, 3, -1),
    Sketcher.Constraint("Diameter", 0, Q("26.936558 mm")),
    Sketcher.Constraint("DistanceX", -1, 1, 0, 3, Q("16.756704 mm")),
])
pocket3 = body.newObject("PartDesign::Pocket", "Pocket002")
pocket3.Profile = sketch7
pocket3.Length = 16
pocket3.Reversed = True

sketch8 = body.newObject("Sketcher::SketchObject", "Sketch007")
sketch8.AttachmentSupport = (doc.getObject("XY_Plane"), [""])
sketch8.MapMode = "FlatFace"
sketch8.AttachmentOffset = App.Placement(Vector(0, 0, -25), App.Rotation())
sketch8.addGeometry(Part.Circle(Vector(-46, 0, 0), Vector(0, 0, 1), 13), False)
sketch8.addConstraint([
    Sketcher.Constraint("PointOnObject", 0, 3, -1),
    Sketcher.Constraint("Diameter", 0, Q("26.936558 mm")),
    Sketcher.Constraint("DistanceX", 0, 3, -1, 1, Q("45.563544 mm")),
])
pocket4 = body.newObject("PartDesign::Pocket", "Pocket003")
pocket4.Profile = sketch8
pocket4.Length = 25
pocket4.Reversed = True

sketch9 = body.newObject("Sketcher::SketchObject", "Sketch008")
sketch9.AttachmentSupport = (doc.getObject("XY_Plane"), [""])
sketch9.MapMode = "FlatFace"
sketch9.AttachmentOffset = App.Placement(Vector(0, 0, -25), App.Rotation())
sketch9.addGeometry([
    Part.Circle(Vector(60, 67.5, 0), Vector(0, 0, 1), 6),
    Part.Circle(Vector(60, 67.5, 0), Vector(0, 0, 1), 4),
    Part.Circle(Vector(-60, 67.5, 0), Vector(0, 0, 1), 6),
    Part.Circle(Vector(-60, 67.5, 0), Vector(0, 0, 1), 4),
    Part.Circle(Vector(-60, -67.5, 0), Vector(0, 0, 1), 6),
    Part.Circle(Vector(-60, -67.5, 0), Vector(0, 0, 1), 4),
    Part.Circle(Vector(60, -67.5, 0), Vector(0, 0, 1), 6),
    Part.Circle(Vector(60, -67.5, 0), Vector(0, 0, 1), 4),
], False)
sketch9.addConstraint([
    Sketcher.Constraint("Coincident", 1, 3, 0, 3),
    Sketcher.Constraint("Coincident", 3, 3, 2, 3),
    Sketcher.Constraint("Coincident", 5, 3, 4, 3),
    Sketcher.Constraint("Coincident", 7, 3, 6, 3),
    Sketcher.Constraint("Equal", 0, 2),
    Sketcher.Constraint("Equal", 1, 3),
    Sketcher.Constraint("Equal", 2, 4),
    Sketcher.Constraint("Equal", 3, 5),
    Sketcher.Constraint("Equal", 4, 6),
    Sketcher.Constraint("Equal", 5, 7),
    Sketcher.Constraint("Symmetric", 0, 3, 4, 3, -1, 1),
    Sketcher.Constraint("Symmetric", 2, 3, 6, 3, -1, 1),
    Sketcher.Constraint("Symmetric", 0, 3, 2, 3, -2),
    Sketcher.Constraint("Diameter", 0, Q("12 mm")),
    Sketcher.Constraint("Diameter", 1, Q("8 mm")),
    Sketcher.Constraint("DistanceX", -1, 1, 0, 3, Q("60 mm")),
    Sketcher.Constraint("DistanceY", 4, 3, 2, 3, Q("135 mm")),
])
pocket5 = body.newObject("PartDesign::Pocket", "Pocket004")
pocket5.Profile = sketch9
pocket5.Length = 6
pocket5.Reversed = True

sketch10 = body.newObject("Sketcher::SketchObject", "Sketch009")
sketch10.AttachmentSupport = (doc.getObject("XY_Plane"), [""])
sketch10.MapMode = "FlatFace"
sketch10.AttachmentOffset = App.Placement(Vector(0, 0, -9), App.Rotation())
sketch10.addGeometry([
    Part.LineSegment(Vector(11, -13.5, 0), Vector(11, -17.5, 0)),
    Part.ArcOfCircle(Part.Circle(Vector(16.8, 0, 0), Vector(0, 0, 1), 18.5), math.radians(-172), math.radians(-108)),
    Part.LineSegment(Vector(-1.5, -2.5, 0), Vector(14, -2.5, 0)),
    Part.ArcOfCircle(Part.Circle(Vector(14, -5.5, 0), Vector(0, 0, 1), 3), math.radians(0), math.radians(90)),
    Part.LineSegment(Vector(17, -5.5, 0), Vector(17, -7.5, 0)),
    Part.ArcOfCircle(Part.Circle(Vector(14, -7.5, 0), Vector(0, 0, 1), 3), math.radians(-90), math.radians(0)),
    Part.ArcOfCircle(Part.Circle(Vector(14, -13.5, 0), Vector(0, 0, 1), 3), math.radians(90), math.radians(156)),
    Part.ArcOfCircle(Part.Circle(Vector(14, -13.5, 0), Vector(0, 0, 1), 3), math.radians(156), math.radians(180)),
    Part.ArcOfCircle(Part.Circle(Vector(16.8, 0, 0), Vector(0, 0, 1), 18.5), math.radians(108), math.radians(172)),
    Part.LineSegment(Vector(11, 17.5, 0), Vector(11, 13.5, 0)),
    Part.ArcOfCircle(Part.Circle(Vector(14, 13.5, 0), Vector(0, 0, 1), 3), math.radians(180), math.radians(204)),
    Part.ArcOfCircle(Part.Circle(Vector(14, 13.5, 0), Vector(0, 0, 1), 3), math.radians(-156), math.radians(-90)),
    Part.ArcOfCircle(Part.Circle(Vector(14, 7.5, 0), Vector(0, 0, 1), 3), math.radians(0), math.radians(90)),
    Part.LineSegment(Vector(17, 7.5, 0), Vector(17, 5.5, 0)),
    Part.ArcOfCircle(Part.Circle(Vector(14, 5.5, 0), Vector(0, 0, 1), 3), math.radians(-90), math.radians(0)),
    Part.LineSegment(Vector(14, 2.5, 0), Vector(-1.5, 2.5, 0)),
], False)
sketch10.addConstraint([
    Sketcher.Constraint("Coincident", 0, 2, 1, 2),
    Sketcher.Constraint("Coincident", 1, 1, 2, 1),
    Sketcher.Constraint("Tangent", 2, 2, 3, 2),
    Sketcher.Constraint("Tangent", 3, 1, 4, 1),
    Sketcher.Constraint("Tangent", 4, 2, 5, 2),
    Sketcher.Constraint("Tangent", 5, 1, 6, 1),
    Sketcher.Constraint("Tangent", 6, 2, 7, 1),
    Sketcher.Constraint("Tangent", 7, 2, 0, 1),
    Sketcher.Constraint("Coincident", 8, 1, 9, 1),
    Sketcher.Constraint("Tangent", 9, 2, 10, 1),
    Sketcher.Constraint("Tangent", 10, 2, 11, 1),
    Sketcher.Constraint("Tangent", 11, 2, 12, 2),
    Sketcher.Constraint("Tangent", 12, 1, 13, 1),
    Sketcher.Constraint("Tangent", 13, 2, 14, 2),
    Sketcher.Constraint("Tangent", 14, 1, 15, 1),
    Sketcher.Constraint("Coincident", 15, 2, 8, 2),
    Sketcher.Constraint("Vertical", 0),
    Sketcher.Constraint("Horizontal", 2),
    Sketcher.Constraint("Vertical", 4),
    Sketcher.Constraint("Vertical", 9),
    Sketcher.Constraint("Vertical", 13),
    Sketcher.Constraint("Horizontal", 15),
    Sketcher.Constraint("Coincident", 8, 3, 1, 3),
    Sketcher.Constraint("Equal", 3, 5),
    Sketcher.Constraint("Equal", 5, 6),
    Sketcher.Constraint("Equal", 6, 7),
    Sketcher.Constraint("Equal", 1, 8),
    Sketcher.Constraint("Equal", 7, 10),
    Sketcher.Constraint("Equal", 10, 11),
    Sketcher.Constraint("Equal", 11, 12),
    Sketcher.Constraint("Equal", 12, 14),
    Sketcher.Constraint("Symmetric", 6, 3, 10, 3, -1),
    Sketcher.Constraint("Symmetric", 3, 3, 14, 3, -1),
    Sketcher.Constraint("PointOnObject", 1, 3, -1),
    Sketcher.Constraint("Vertical", 5, 3, 6, 3),
    Sketcher.Constraint("Vertical", 6, 2, 10, 2),
    Sketcher.Constraint("Radius", 3, Q("3 mm")),
    Sketcher.Constraint("DistanceY", 4, 2, 4, 1, Q("2 mm")),
    Sketcher.Constraint("DistanceX", -1, 1, 3, 3, Q("14 mm")),
    Sketcher.Constraint("DistanceY", 3, 3, 10, 3, Q("19 mm")),
    Sketcher.Constraint("Radius", 1, Q("18.468279 mm")),
    Sketcher.Constraint("DistanceX", 2, 1, 2, 2, Q("15.541584 mm")),
    Sketcher.Constraint("DistanceX", 15, 2, 10, 2, Q("12.795229 mm")),
])
pocket6 = body.newObject("PartDesign::Pocket", "Pocket005")
pocket6.Profile = sketch10
pocket6.Length = 9
doc.recompute()

fillet = body.newObject("PartDesign::Fillet", "Fillet")
fillet.Base = (pocket6, edges_at(pocket6, [
    (-57, -23.703, -18),
    (-57, 23.703, -18),
    (25, 0, -5),
    (25, 16.527, -11.5),
    (25, -16.527, -11.5),
    (25, -27.887, -18),
    (35.225, 0, -18),
]))
fillet.Radius = 3
doc.recompute()

fillet2 = body.newObject("PartDesign::Fillet", "Fillet001")
fillet2.Base = (fillet, edges_at(fillet, [(0, -90, -25)]))
fillet2.Radius = 2
body2 = doc.addObject("PartDesign::Body", "Body001")

sketch11 = body2.newObject("Sketcher::SketchObject", "Sketch010")
sketch11.AttachmentSupport = (doc.getObject("XY_Plane001"), [""])
sketch11.MapMode = "FlatFace"
sketch11.addGeometry([
    Part.LineSegment(Vector(-15, 108, 0), Vector(-33, 90, 0)),
    Part.LineSegment(Vector(-33, 90, 0), Vector(33, 90, 0)),
    Part.LineSegment(Vector(33, 90, 0), Vector(15, 108, 0)),
    Part.LineSegment(Vector(15, 108, 0), Vector(15, 120, 0)),
    Part.ArcOfCircle(Part.Circle(Vector(0, 120, 0), Vector(0, 0, 1), 15), math.radians(0), math.radians(180)),
    Part.LineSegment(Vector(-15, 120, 0), Vector(-15, 108, 0)),
    Part.Circle(Vector(0, 120, 0), Vector(0, 0, 1), 6),
], False)
sketch11.addConstraint([
    Sketcher.Constraint("Coincident", 0, 2, 1, 1),
    Sketcher.Constraint("Coincident", 1, 2, 2, 1),
    Sketcher.Constraint("Coincident", 2, 2, 3, 1),
    Sketcher.Constraint("Tangent", 3, 2, 4, 1),
    Sketcher.Constraint("Tangent", 4, 2, 5, 1),
    Sketcher.Constraint("Coincident", 5, 2, 0, 1),
    Sketcher.Constraint("Horizontal", 1),
    Sketcher.Constraint("Vertical", 3),
    Sketcher.Constraint("Vertical", 5),
    Sketcher.Constraint("Coincident", 6, 3, 4, 3),
    Sketcher.Constraint("Symmetric", 2, 2, 5, 2, -2),
    Sketcher.Constraint("Perpendicular", 0, 2),
    Sketcher.Constraint("Equal", 0, 2),
    Sketcher.Constraint("Diameter", 6, Q("12 mm")),
    Sketcher.Constraint("Radius", 4, Q("15 mm")),
    Sketcher.Constraint("DistanceX", 1, 1, 1, 2, Q("66 mm")),
    Sketcher.Constraint("DistanceY", 3, 1, 3, 2, Q("12 mm")),
    Sketcher.Constraint("DistanceY", -1, 1, 4, 3, Q("120 mm")),
])
pad5 = body2.newObject("PartDesign::Pad", "Pad004")
pad5.Profile = sketch11
pad5.Length = 3
body3 = doc.addObject("PartDesign::Body", "Body002")

sketch12 = body3.newObject("Sketcher::SketchObject", "Sketch011")
sketch12.AttachmentSupport = (doc.getObject("XY_Plane002"), [""])
sketch12.MapMode = "FlatFace"
sketch12.addGeometry([
    Part.LineSegment(Vector(33, -90, 0), Vector(-33, -90, 0)),
    Part.LineSegment(Vector(-33, -90, 0), Vector(-15, -108, 0)),
    Part.LineSegment(Vector(-15, -108, 0), Vector(-15, -120, 0)),
    Part.ArcOfCircle(Part.Circle(Vector(0, -120, 0), Vector(0, 0, 1), 15), math.radians(180), math.radians(360)),
    Part.LineSegment(Vector(15, -120, 0), Vector(15, -108, 0)),
    Part.LineSegment(Vector(15, -108, 0), Vector(33, -90, 0)),
    Part.Circle(Vector(0, -120, 0), Vector(0, 0, 1), 6),
], False)
sketch12.addConstraint([
    Sketcher.Constraint("Coincident", 0, 2, 1, 1),
    Sketcher.Constraint("Coincident", 1, 2, 2, 1),
    Sketcher.Constraint("Tangent", 2, 2, 3, 1),
    Sketcher.Constraint("Tangent", 3, 2, 4, 1),
    Sketcher.Constraint("Coincident", 4, 2, 5, 1),
    Sketcher.Constraint("Coincident", 5, 2, 0, 1),
    Sketcher.Constraint("Horizontal", 0),
    Sketcher.Constraint("Vertical", 2),
    Sketcher.Constraint("Vertical", 4),
    Sketcher.Constraint("Coincident", 6, 3, 3, 3),
    Sketcher.Constraint("Symmetric", 1, 2, 4, 2, -2),
    Sketcher.Constraint("Perpendicular", 1, 5),
    Sketcher.Constraint("Equal", 1, 5),
    Sketcher.Constraint("Diameter", 6, Q("12 mm")),
    Sketcher.Constraint("Radius", 3, Q("15 mm")),
    Sketcher.Constraint("DistanceX", 0, 2, 0, 1, Q("66 mm")),
    Sketcher.Constraint("DistanceY", 2, 2, 2, 1, Q("12 mm")),
    Sketcher.Constraint("DistanceY", 3, 3, -1, 1, Q("120 mm")),
])
pad6 = body3.newObject("PartDesign::Pad", "Pad005")
pad6.Profile = sketch12
pad6.Length = 3

doc.recompute()
